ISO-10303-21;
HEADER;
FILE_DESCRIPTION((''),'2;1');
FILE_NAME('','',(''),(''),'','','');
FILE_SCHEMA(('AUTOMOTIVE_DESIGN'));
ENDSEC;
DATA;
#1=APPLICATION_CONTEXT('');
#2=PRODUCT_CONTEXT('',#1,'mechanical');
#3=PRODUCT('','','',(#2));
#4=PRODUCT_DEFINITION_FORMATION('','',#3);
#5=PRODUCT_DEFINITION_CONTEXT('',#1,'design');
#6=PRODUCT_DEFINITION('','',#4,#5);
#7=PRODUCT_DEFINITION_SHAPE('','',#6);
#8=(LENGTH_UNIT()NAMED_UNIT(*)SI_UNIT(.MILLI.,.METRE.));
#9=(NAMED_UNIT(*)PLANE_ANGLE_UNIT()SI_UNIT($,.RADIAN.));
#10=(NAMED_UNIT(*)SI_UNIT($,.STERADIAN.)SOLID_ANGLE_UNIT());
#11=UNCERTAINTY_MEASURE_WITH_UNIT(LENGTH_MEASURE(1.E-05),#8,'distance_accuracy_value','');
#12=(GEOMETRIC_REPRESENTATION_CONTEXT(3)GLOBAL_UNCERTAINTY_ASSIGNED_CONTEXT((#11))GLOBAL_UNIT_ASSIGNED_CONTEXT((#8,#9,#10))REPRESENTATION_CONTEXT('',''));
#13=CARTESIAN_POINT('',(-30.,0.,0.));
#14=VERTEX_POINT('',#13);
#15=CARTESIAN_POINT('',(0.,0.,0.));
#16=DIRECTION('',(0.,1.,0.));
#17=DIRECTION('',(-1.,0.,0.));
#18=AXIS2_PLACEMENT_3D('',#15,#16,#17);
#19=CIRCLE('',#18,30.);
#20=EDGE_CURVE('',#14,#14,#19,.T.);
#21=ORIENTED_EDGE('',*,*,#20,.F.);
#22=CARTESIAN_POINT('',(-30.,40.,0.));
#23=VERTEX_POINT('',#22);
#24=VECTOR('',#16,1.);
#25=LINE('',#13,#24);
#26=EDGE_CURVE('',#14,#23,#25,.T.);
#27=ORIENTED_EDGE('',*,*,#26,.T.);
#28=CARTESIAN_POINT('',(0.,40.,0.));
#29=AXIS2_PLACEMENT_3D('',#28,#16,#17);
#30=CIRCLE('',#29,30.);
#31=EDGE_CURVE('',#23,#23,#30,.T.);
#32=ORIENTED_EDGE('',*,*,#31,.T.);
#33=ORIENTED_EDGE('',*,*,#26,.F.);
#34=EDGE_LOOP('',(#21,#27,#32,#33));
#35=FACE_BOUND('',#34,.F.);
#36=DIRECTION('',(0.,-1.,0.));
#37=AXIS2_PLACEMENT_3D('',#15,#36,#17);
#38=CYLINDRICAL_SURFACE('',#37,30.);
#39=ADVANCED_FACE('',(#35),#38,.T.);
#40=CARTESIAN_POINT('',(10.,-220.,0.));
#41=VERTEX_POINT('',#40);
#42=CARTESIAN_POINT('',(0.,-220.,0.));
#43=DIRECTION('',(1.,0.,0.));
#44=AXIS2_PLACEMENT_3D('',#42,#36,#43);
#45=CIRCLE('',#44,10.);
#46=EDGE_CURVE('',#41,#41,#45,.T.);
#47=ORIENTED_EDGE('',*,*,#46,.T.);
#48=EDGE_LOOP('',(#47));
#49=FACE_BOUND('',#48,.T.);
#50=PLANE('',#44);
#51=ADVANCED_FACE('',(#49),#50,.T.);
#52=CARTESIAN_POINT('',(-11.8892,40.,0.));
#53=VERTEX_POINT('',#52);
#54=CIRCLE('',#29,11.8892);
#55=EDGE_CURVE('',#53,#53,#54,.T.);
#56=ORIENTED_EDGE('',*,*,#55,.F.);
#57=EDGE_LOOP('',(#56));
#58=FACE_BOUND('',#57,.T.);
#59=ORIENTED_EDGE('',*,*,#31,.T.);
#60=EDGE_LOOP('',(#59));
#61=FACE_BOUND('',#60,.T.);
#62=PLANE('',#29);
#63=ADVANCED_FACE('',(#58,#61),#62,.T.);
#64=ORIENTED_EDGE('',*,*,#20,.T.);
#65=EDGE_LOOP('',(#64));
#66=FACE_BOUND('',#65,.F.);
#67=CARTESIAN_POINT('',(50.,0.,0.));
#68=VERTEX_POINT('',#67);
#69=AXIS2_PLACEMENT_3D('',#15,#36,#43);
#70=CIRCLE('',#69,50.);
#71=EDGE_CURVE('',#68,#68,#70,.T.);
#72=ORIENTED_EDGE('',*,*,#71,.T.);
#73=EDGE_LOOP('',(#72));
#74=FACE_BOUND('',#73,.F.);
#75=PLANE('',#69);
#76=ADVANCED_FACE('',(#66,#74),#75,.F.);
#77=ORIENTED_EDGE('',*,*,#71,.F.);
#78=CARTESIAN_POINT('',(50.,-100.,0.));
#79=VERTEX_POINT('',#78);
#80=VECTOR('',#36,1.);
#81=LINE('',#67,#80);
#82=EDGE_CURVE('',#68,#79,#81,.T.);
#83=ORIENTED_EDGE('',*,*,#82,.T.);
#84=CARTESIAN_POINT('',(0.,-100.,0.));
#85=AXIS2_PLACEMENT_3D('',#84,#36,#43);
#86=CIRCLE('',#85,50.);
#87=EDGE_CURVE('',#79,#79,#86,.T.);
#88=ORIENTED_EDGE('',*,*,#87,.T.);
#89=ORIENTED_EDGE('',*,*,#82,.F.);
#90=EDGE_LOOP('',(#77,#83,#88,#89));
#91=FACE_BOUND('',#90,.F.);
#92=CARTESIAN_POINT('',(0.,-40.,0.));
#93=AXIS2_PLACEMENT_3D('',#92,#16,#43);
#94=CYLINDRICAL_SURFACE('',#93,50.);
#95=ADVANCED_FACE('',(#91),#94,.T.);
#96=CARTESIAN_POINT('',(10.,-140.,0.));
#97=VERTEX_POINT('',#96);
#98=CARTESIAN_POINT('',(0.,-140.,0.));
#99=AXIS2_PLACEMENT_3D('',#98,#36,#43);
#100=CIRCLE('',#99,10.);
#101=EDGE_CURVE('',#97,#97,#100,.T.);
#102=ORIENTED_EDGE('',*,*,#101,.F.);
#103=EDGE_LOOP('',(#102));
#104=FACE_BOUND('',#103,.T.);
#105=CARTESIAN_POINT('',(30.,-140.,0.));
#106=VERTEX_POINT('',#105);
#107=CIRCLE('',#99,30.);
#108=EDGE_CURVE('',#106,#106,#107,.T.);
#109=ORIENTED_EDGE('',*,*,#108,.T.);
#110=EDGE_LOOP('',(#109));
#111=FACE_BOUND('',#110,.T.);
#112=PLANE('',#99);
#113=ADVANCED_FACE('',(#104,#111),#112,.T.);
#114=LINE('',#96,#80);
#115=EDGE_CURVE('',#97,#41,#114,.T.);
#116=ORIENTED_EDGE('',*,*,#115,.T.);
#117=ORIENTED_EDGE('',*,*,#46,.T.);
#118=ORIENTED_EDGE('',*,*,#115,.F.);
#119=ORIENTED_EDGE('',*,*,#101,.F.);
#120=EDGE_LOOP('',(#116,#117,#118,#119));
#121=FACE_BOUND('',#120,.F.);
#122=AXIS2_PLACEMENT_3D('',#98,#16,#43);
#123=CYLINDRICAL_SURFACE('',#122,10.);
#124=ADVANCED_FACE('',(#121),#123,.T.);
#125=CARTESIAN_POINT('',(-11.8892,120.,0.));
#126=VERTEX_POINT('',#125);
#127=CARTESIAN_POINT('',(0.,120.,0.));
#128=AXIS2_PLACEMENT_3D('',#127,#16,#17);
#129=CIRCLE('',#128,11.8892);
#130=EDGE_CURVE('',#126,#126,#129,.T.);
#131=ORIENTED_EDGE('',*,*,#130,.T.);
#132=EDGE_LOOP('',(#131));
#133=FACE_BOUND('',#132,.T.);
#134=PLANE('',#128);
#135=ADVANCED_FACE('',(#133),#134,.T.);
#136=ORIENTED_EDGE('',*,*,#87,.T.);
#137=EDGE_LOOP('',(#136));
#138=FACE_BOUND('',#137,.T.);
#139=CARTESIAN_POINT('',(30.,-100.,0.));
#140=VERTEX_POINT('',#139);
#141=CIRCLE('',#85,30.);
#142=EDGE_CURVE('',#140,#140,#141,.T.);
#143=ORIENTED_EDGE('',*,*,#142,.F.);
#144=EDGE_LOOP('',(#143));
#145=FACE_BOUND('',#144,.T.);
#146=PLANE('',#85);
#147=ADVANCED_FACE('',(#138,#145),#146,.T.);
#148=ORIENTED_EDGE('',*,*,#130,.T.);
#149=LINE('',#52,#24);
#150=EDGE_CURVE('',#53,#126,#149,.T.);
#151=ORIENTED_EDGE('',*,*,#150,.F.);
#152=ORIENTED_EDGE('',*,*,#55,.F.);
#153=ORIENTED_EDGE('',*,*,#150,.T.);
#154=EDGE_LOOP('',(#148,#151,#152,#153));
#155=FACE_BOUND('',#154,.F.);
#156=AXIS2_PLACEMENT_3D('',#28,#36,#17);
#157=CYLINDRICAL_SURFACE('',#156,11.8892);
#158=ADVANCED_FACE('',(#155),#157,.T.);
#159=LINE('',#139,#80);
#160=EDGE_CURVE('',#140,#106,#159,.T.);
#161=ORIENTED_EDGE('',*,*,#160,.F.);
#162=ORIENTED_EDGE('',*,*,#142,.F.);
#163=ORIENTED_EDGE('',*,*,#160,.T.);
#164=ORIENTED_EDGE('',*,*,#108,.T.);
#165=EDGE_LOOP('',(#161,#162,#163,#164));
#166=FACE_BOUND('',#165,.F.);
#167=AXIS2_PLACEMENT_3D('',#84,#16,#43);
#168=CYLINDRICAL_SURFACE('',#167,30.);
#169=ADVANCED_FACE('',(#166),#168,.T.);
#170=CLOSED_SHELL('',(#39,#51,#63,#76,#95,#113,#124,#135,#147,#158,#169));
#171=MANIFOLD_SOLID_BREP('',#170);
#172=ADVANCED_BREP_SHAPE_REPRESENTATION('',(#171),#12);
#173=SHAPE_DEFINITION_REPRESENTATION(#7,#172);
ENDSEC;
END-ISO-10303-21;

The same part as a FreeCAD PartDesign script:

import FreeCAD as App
import Part
import Sketcher

doc = App.newDocument("Part")
body = doc.addObject("PartDesign::Body", "Body")

sketch1 = doc.addObject("Sketcher::SketchObject", "Sketch")
body.addObject(sketch1)
sketch1.AttachmentSupport = (doc.XZ_Plane, [""])
sketch1.MapMode = "FlatFace"
sketch1.addGeometry(Part.Circle(App.Vector(0, 0, 0), App.Vector(0, 0, 1), 50), False)
sketch1.addConstraint([
    Sketcher.Constraint("Coincident", 0, 3, -1, 1),
    Sketcher.Constraint("Diameter", 0, 100.0),
])
pad1 = doc.addObject("PartDesign::Pad", "Pad")
body.addObject(pad1)
pad1.Profile = sketch1
pad1.Length = 40

sketch2 = doc.addObject("Sketcher::SketchObject", "Sketch001")
body.addObject(sketch2)
sketch2.AttachmentSupport = (doc.XZ_Plane, [""])
sketch2.MapMode = "FlatFace"
sketch2.AttachmentOffset = App.Placement(App.Vector(0, 0, 40), App.Rotation())
sketch2.addGeometry(Part.Circle(App.Vector(0, 0, 0), App.Vector(0, 0, 1), 50), False)
sketch2.addConstraint([
    Sketcher.Constraint("Coincident", 0, 3, -1, 1),
    Sketcher.Constraint("Diameter", 0, 100.0),
])
pad2 = doc.addObject("PartDesign::Pad", "Pad001")
body.addObject(pad2)
pad2.Profile = sketch2
pad2.Length = 60

sketch3 = doc.addObject("Sketcher::SketchObject", "Sketch002")
body.addObject(sketch3)
sketch3.AttachmentSupport = (doc.XZ_Plane, [""])
sketch3.MapMode = "FlatFace"
sketch3.AttachmentOffset = App.Placement(App.Vector(0, 0, 100), App.Rotation())
sketch3.addGeometry(Part.Circle(App.Vector(0, 0, 0), App.Vector(0, 0, 1), 30), False)
sketch3.addConstraint([
    Sketcher.Constraint("Coincident", 0, 3, -1, 1),
    Sketcher.Constraint("Diameter", 0, 60.0),
])
pad3 = doc.addObject("PartDesign::Pad", "Pad002")
body.addObject(pad3)
pad3.Profile = sketch3
pad3.Length = 40

sketch4 = doc.addObject("Sketcher::SketchObject", "Sketch003")
body.addObject(sketch4)
sketch4.AttachmentSupport = (doc.XZ_Plane, [""])
sketch4.MapMode = "FlatFace"
sketch4.AttachmentOffset = App.Placement(App.Vector(0, 0, 140), App.Rotation())
sketch4.addGeometry(Part.Circle(App.Vector(0, 0, 0), App.Vector(0, 0, 1), 10), False)
sketch4.addConstraint([
    Sketcher.Constraint("Coincident", 0, 3, -1, 1),
    Sketcher.Constraint("Diameter", 0, 20.0),
])
pad4 = doc.addObject("PartDesign::Pad", "Pad003")
body.addObject(pad4)
pad4.Profile = sketch4
pad4.Length = 80

sketch5 = doc.addObject("Sketcher::SketchObject", "Sketch004")
body.addObject(sketch5)
sketch5.AttachmentSupport = (doc.XZ_Plane, [""])
sketch5.MapMode = "FlatFace"
sketch5.addGeometry(Part.Circle(App.Vector(0, 0, 0), App.Vector(0, 0, 1), 30), False)
sketch5.addConstraint([
    Sketcher.Constraint("Coincident", 0, 3, -1, 1),
    Sketcher.Constraint("Diameter", 0, 60.0),
])
pad5 = doc.addObject("PartDesign::Pad", "Pad004")
body.addObject(pad5)
pad5.Profile = sketch5
pad5.Length = 40
pad5.Reversed = True

sketch6 = doc.addObject("Sketcher::SketchObject", "Sketch005")
body.addObject(sketch6)
sketch6.AttachmentSupport = (doc.XZ_Plane, [""])
sketch6.MapMode = "FlatFace"
sketch6.AttachmentOffset = App.Placement(App.Vector(0, 0, -40), App.Rotation())
sketch6.addGeometry(Part.Circle(App.Vector(0, 0, 0), App.Vector(0, 0, 1), 12), False)
sketch6.addConstraint([
    Sketcher.Constraint("Coincident", 0, 3, -1, 1),
    Sketcher.Constraint("Diameter", 0, 23.7784),
])
pad6 = doc.addObject("PartDesign::Pad", "Pad005")
body.addObject(pad6)
pad6.Profile = sketch6
pad6.Length = 80
pad6.Reversed = True

doc.recompute()
